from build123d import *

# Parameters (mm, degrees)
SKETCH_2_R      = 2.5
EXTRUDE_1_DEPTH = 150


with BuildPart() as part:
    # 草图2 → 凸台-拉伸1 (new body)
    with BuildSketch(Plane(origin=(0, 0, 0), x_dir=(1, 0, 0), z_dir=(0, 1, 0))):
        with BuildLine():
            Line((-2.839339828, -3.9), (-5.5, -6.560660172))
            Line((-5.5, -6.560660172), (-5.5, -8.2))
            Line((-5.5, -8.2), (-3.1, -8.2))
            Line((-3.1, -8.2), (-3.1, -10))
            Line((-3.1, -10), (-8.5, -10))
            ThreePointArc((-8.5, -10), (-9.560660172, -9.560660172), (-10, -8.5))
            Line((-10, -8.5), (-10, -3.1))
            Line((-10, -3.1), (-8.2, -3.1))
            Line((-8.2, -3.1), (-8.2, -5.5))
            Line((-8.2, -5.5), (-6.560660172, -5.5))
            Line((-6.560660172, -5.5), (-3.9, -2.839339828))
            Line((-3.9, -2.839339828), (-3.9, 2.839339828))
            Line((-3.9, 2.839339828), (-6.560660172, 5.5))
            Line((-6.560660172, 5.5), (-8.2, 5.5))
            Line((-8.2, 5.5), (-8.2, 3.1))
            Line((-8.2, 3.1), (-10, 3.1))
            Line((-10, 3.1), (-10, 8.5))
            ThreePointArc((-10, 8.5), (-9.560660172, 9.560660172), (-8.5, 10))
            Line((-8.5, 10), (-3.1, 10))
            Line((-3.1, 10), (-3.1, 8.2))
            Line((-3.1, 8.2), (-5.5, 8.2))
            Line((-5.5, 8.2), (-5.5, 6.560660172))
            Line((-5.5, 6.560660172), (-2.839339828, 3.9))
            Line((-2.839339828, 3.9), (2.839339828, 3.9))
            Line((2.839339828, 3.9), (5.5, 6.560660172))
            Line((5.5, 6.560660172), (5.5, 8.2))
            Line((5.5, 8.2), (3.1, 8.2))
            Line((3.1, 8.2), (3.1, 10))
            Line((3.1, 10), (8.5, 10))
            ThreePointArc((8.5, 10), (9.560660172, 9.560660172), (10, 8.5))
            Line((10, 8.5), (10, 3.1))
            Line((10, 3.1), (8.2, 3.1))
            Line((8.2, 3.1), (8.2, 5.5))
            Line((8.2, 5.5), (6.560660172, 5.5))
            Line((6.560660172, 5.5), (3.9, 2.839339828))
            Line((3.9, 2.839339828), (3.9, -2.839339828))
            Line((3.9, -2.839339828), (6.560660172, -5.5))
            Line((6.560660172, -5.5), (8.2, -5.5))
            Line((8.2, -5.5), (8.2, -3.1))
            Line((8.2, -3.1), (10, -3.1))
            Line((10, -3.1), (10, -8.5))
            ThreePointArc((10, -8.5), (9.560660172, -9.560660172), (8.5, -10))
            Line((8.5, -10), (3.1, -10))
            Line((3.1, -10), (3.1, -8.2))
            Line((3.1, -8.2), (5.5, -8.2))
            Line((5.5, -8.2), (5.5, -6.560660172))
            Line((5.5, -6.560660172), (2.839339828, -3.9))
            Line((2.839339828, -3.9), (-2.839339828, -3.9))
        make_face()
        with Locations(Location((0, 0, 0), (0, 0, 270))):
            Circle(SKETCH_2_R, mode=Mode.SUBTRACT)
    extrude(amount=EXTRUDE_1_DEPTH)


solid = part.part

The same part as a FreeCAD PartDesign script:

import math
import FreeCAD as App
import Part
import Sketcher

doc = App.newDocument("Part")
body = doc.addObject("PartDesign::Body", "Body")

sketch1 = body.newObject("Sketcher::SketchObject", "Sketch")
sketch1.AttachmentSupport = (doc.getObject("XZ_Plane"), [""])
sketch1.MapMode = "FlatFace"
sketch1.addGeometry([
    Part.LineSegment(App.Vector(-5.5, 6.56066, 0), App.Vector(-2.83934, 3.9, 0)),
    Part.LineSegment(App.Vector(-2.83934, 3.9, 0), App.Vector(2.83934, 3.9, 0)),
    Part.LineSegment(App.Vector(2.83934, 3.9, 0), App.Vector(5.5, 6.56066, 0)),
    Part.LineSegment(App.Vector(5.5, 6.56066, 0), App.Vector(5.5, 8.2, 0)),
    Part.LineSegment(App.Vector(5.5, 8.2, 0), App.Vector(3.1, 8.2, 0)),
    Part.LineSegment(App.Vector(3.1, 8.2, 0), App.Vector(3.1, 10, 0)),
    Part.LineSegment(App.Vector(3.1, 10, 0), App.Vector(8.5, 10, 0)),
    Part.ArcOfCircle(Part.Circle(App.Vector(8.5, 8.5, 0), App.Vector(0, 0, 1), 1.5), math.radians(0), math.radians(90)),
    Part.LineSegment(App.Vector(10, 8.5, 0), App.Vector(10, 3.1, 0)),
    Part.LineSegment(App.Vector(10, 3.1, 0), App.Vector(8.2, 3.1, 0)),
    Part.LineSegment(App.Vector(8.2, 3.1, 0), App.Vector(8.2, 5.5, 0)),
    Part.LineSegment(App.Vector(8.2, 5.5, 0), App.Vector(6.56066, 5.5, 0)),
    Part.LineSegment(App.Vector(6.56066, 5.5, 0), App.Vector(3.9, 2.83934, 0)),
    Part.LineSegment(App.Vector(3.9, 2.83934, 0), App.Vector(3.9, -2.83934, 0)),
    Part.LineSegment(App.Vector(3.9, -2.83934, 0), App.Vector(6.56066, -5.5, 0)),
    Part.LineSegment(App.Vector(6.56066, -5.5, 0), App.Vector(8.2, -5.5, 0)),
    Part.LineSegment(App.Vector(8.2, -5.5, 0), App.Vector(8.2, -3.1, 0)),
    Part.LineSegment(App.Vector(8.2, -3.1, 0), App.Vector(10, -3.1, 0)),
    Part.LineSegment(App.Vector(10, -3.1, 0), App.Vector(10, -8.5, 0)),
    Part.ArcOfCircle(Part.Circle(App.Vector(8.5, -8.5, 0), App.Vector(0, 0, 1), 1.5), math.radians(-90), math.radians(0)),
    Part.LineSegment(App.Vector(8.5, -10, 0), App.Vector(3.1, -10, 0)),
    Part.LineSegment(App.Vector(3.1, -10, 0), App.Vector(3.1, -8.2, 0)),
    Part.LineSegment(App.Vector(3.1, -8.2, 0), App.Vector(5.5, -8.2, 0)),
    Part.LineSegment(App.Vector(5.5, -8.2, 0), App.Vector(5.5, -6.56066, 0)),
    Part.LineSegment(App.Vector(5.5, -6.56066, 0), App.Vector(2.83934, -3.9, 0)),
    Part.LineSegment(App.Vector(2.83934, -3.9, 0), App.Vector(-2.83934, -3.9, 0)),
    Part.LineSegment(App.Vector(-2.83934, -3.9, 0), App.Vector(-5.5, -6.56066, 0)),
    Part.LineSegment(App.Vector(-5.5, -6.56066, 0), App.Vector(-5.5, -8.2, 0)),
    Part.LineSegment(App.Vector(-5.5, -8.2, 0), App.Vector(-3.1, -8.2, 0)),
    Part.LineSegment(App.Vector(-3.1, -8.2, 0), App.Vector(-3.1, -10, 0)),
    Part.LineSegment(App.Vector(-3.1, -10, 0), App.Vector(-8.5, -10, 0)),
    Part.ArcOfCircle(Part.Circle(App.Vector(-8.5, -8.5, 0), App.Vector(0, 0, 1), 1.5), math.radians(180), math.radians(270)),
    Part.LineSegment(App.Vector(-10, -8.5, 0), App.Vector(-10, -3.1, 0)),
    Part.LineSegment(App.Vector(-10, -3.1, 0), App.Vector(-8.2, -3.1, 0)),
    Part.LineSegment(App.Vector(-8.2, -3.1, 0), App.Vector(-8.2, -5.5, 0)),
    Part.LineSegment(App.Vector(-8.2, -5.5, 0), App.Vector(-6.56066, -5.5, 0)),
    Part.LineSegment(App.Vector(-6.56066, -5.5, 0), App.Vector(-3.9, -2.83934, 0)),
    Part.LineSegment(App.Vector(-3.9, -2.83934, 0), App.Vector(-3.9, 2.83934, 0)),
    Part.LineSegment(App.Vector(-3.9, 2.83934, 0), App.Vector(-6.56066, 5.5, 0)),
    Part.LineSegment(App.Vector(-6.56066, 5.5, 0), App.Vector(-8.2, 5.5, 0)),
    Part.LineSegment(App.Vector(-8.2, 5.5, 0), App.Vector(-8.2, 3.1, 0)),
    Part.LineSegment(App.Vector(-8.2, 3.1, 0), App.Vector(-10, 3.1, 0)),
    Part.LineSegment(App.Vector(-10, 3.1, 0), App.Vector(-10, 8.5, 0)),
    Part.ArcOfCircle(Part.Circle(App.Vector(-8.5, 8.5, 0), App.Vector(0, 0, 1), 1.5), math.radians(90), math.radians(180)),
    Part.LineSegment(App.Vector(-8.5, 10, 0), App.Vector(-3.1, 10, 0)),
    Part.LineSegment(App.Vector(-3.1, 10, 0), App.Vector(-3.1, 8.2, 0)),
    Part.LineSegment(App.Vector(-3.1, 8.2, 0), App.Vector(-5.5, 8.2, 0)),
    Part.LineSegment(App.Vector(-5.5, 8.2, 0), App.Vector(-5.5, 6.56066, 0)),
    Part.Circle(App.Vector(0, 0, 0), App.Vector(0, 0, 1), 2.5),
], False)
sketch1.addConstraint([
    Sketcher.Constraint("Coincident", 0, 2, 1, 1),
    Sketcher.Constraint("Coincident", 1, 2, 2, 1),
    Sketcher.Constraint("Coincident", 2, 2, 3, 1),
    Sketcher.Constraint("Coincident", 3, 2, 4, 1),
    Sketcher.Constraint("Coincident", 4, 2, 5, 1),
    Sketcher.Constraint("Coincident", 5, 2, 6, 1),
    Sketcher.Constraint("Tangent", 6, 2, 7, 2),
    Sketcher.Constraint("Tangent", 7, 1, 8, 1),
    Sketcher.Constraint("Coincident", 8, 2, 9, 1),
    Sketcher.Constraint("Coincident", 9, 2, 10, 1),
    Sketcher.Constraint("Coincident", 10, 2, 11, 1),
    Sketcher.Constraint("Coincident", 11, 2, 12, 1),
    Sketcher.Constraint("Coincident", 12, 2, 13, 1),
    Sketcher.Constraint("Coincident", 13, 2, 14, 1),
    Sketcher.Constraint("Coincident", 14, 2, 15, 1),
    Sketcher.Constraint("Coincident", 15, 2, 16, 1),
    Sketcher.Constraint("Coincident", 16, 2, 17, 1),
    Sketcher.Constraint("Coincident", 17, 2, 18, 1),
    Sketcher.Constraint("Tangent", 18, 2, 19, 2),
    Sketcher.Constraint("Tangent", 19, 1, 20, 1),
    Sketcher.Constraint("Coincident", 20, 2, 21, 1),
    Sketcher.Constraint("Coincident", 21, 2, 22, 1),
    Sketcher.Constraint("Coincident", 22, 2, 23, 1),
    Sketcher.Constraint("Coincident", 23, 2, 24, 1),
    Sketcher.Constraint("Coincident", 24, 2, 25, 1),
    Sketcher.Constraint("Coincident", 25, 2, 26, 1),
    Sketcher.Constraint("Coincident", 26, 2, 27, 1),
    Sketcher.Constraint("Coincident", 27, 2, 28, 1),
    Sketcher.Constraint("Coincident", 28, 2, 29, 1),
    Sketcher.Constraint("Coincident", 29, 2, 30, 1),
    Sketcher.Constraint("Tangent", 30, 2, 31, 2),
    Sketcher.Constraint("Tangent", 31, 1, 32, 1),
    Sketcher.Constraint("Coincident", 32, 2, 33, 1),
    Sketcher.Constraint("Coincident", 33, 2, 34, 1),
    Sketcher.Constraint("Coincident", 34, 2, 35, 1),
    Sketcher.Constraint("Coincident", 35, 2, 36, 1),
    Sketcher.Constraint("Coincident", 36, 2, 37, 1),
    Sketcher.Constraint("Coincident", 37, 2, 38, 1),
    Sketcher.Constraint("Coincident", 38, 2, 39, 1),
    Sketcher.Constraint("Coincident", 39, 2, 40, 1),
    Sketcher.Constraint("Coincident", 40, 2, 41, 1),
    Sketcher.Constraint("Coincident", 41, 2, 42, 1),
    Sketcher.Constraint("Tangent", 42, 2, 43, 2),
    Sketcher.Constraint("Tangent", 43, 1, 44, 1),
    Sketcher.Constraint("Coincident", 44, 2, 45, 1),
    Sketcher.Constraint("Coincident", 45, 2, 46, 1),
    Sketcher.Constraint("Coincident", 46, 2, 47, 1),
    Sketcher.Constraint("Coincident", 47, 2, 0, 1),
    Sketcher.Constraint("Horizontal", 1),
    Sketcher.Constraint("Vertical", 3),
    Sketcher.Constraint("Horizontal", 4),
    Sketcher.Constraint("Vertical", 5),
    Sketcher.Constraint("Horizontal", 6),
    Sketcher.Constraint("Vertical", 8),
    Sketcher.Constraint("Horizontal", 9),
    Sketcher.Constraint("Vertical", 10),
    Sketcher.Constraint("Horizontal", 11),
    Sketcher.Constraint("Vertical", 13),
    Sketcher.Constraint("Horizontal", 15),
    Sketcher.Constraint("Vertical", 16),
    Sketcher.Constraint("Horizontal", 17),
    Sketcher.Constraint("Vertical", 18),
    Sketcher.Constraint("Horizontal", 20),
    Sketcher.Constraint("Vertical", 21),
    Sketcher.Constraint("Horizontal", 22),
    Sketcher.Constraint("Vertical", 23),
    Sketcher.Constraint("Horizontal", 25),
    Sketcher.Constraint("Vertical", 27),
    Sketcher.Constraint("Horizontal", 28),
    Sketcher.Constraint("Vertical", 29),
    Sketcher.Constraint("Horizontal", 30),
    Sketcher.Constraint("Vertical", 32),
    Sketcher.Constraint("Horizontal", 33),
    Sketcher.Constraint("Vertical", 34),
    Sketcher.Constraint("Horizontal", 35),
    Sketcher.Constraint("Vertical", 37),
    Sketcher.Constraint("Horizontal", 39),
    Sketcher.Constraint("Vertical", 40),
    Sketcher.Constraint("Horizontal", 41),
    Sketcher.Constraint("Vertical", 42),
    Sketcher.Constraint("Horizontal", 44),
    Sketcher.Constraint("Vertical", 45),
    Sketcher.Constraint("Horizontal", 46),
    Sketcher.Constraint("Vertical", 47),
    Sketcher.Constraint("Coincident", 48, 3, -1, 1),
    Sketcher.Constraint("Equal", 7, 19),
    Sketcher.Constraint("Equal", 19, 31),
    Sketcher.Constraint("Equal", 31, 43),
    Sketcher.Constraint("Symmetric", 7, 3, 31, 3, -1, 1),
    Sketcher.Constraint("Symmetric", 19, 3, 43, 3, -1, 1),
    Sketcher.Constraint("Symmetric", 0, 2, 24, 2, -1, 1),
    Sketcher.Constraint("Symmetric", 2, 2, 26, 2, -1, 1),
    Sketcher.Constraint("Symmetric", 4, 2, 28, 2, -1, 1),
    Sketcher.Constraint("Symmetric", 9, 2, 33, 2, -1, 1),
    Sketcher.Constraint("Symmetric", 11, 2, 35, 2, -1, 1),
    Sketcher.Constraint("Symmetric", 12, 2, 36, 2, -1, 1),
    Sketcher.Constraint("Symmetric", 14, 2, 38, 2, -1, 1),
    Sketcher.Constraint("Symmetric", 16, 2, 40, 2, -1, 1),
    Sketcher.Constraint("Symmetric", 21, 2, 45, 2, -1, 1),
    Sketcher.Constraint("Symmetric", 23, 2, 47, 2, -1, 1),
    Sketcher.Constraint("Symmetric", 19, 3, 31, 3, -2),
    Sketcher.Constraint("Symmetric", 23, 2, 26, 2, -2),
    Sketcher.Constraint("Symmetric", 21, 2, 28, 2, -2),
    Sketcher.Constraint("Symmetric", 16, 2, 33, 2, -2),
    Sketcher.Constraint("Symmetric", 14, 2, 35, 2, -2),
    Sketcher.Constraint("Perpendicular", 0, 2),
    Sketcher.Constraint("Parallel", 2, 12),
    Sketcher.Constraint("Perpendicular", 12, 14),
    Sketcher.Constraint("Perpendicular", 24, 26),
    Sketcher.Constraint("Perpendicular", 36, 38),
    Sketcher.Constraint("Horizontal", 13, 2, 36, 2),
    Sketcher.Constraint("Equal", 39, 3),
    Sketcher.Constraint("Equal", 41, 5),
    Sketcher.Constraint("Equal", 44, 8),
    Sketcher.Constraint("Equal", 46, 10),
    Sketcher.Constraint("Equal", 25, 13),
    Sketcher.Constraint("Equal", 2, 12),
    Sketcher.Constraint("Diameter", 48, 5.0),
    Sketcher.Constraint("Radius", 7, 1.5),
    Sketcher.Constraint("DistanceX", 4, 2, 4, 1, 2.4),
    Sketcher.Constraint("DistanceX", 6, 1, 6, 2, 5.4),
    Sketcher.Constraint("DistanceX", 9, 2, 9, 1, 1.8),
    Sketcher.Constraint("DistanceY", -1, 1, 5, 2, 10.0),
    Sketcher.Constraint("DistanceY", -1, 1, 0, 2, 3.9),
    Sketcher.Constraint("DistanceX", 1, 1, 1, 2, 5.67868),
])
pad1 = body.newObject("PartDesign::Pad", "Pad")
pad1.Profile = sketch1
pad1.Length = 150
pad1.Reversed = True

doc.recompute()
